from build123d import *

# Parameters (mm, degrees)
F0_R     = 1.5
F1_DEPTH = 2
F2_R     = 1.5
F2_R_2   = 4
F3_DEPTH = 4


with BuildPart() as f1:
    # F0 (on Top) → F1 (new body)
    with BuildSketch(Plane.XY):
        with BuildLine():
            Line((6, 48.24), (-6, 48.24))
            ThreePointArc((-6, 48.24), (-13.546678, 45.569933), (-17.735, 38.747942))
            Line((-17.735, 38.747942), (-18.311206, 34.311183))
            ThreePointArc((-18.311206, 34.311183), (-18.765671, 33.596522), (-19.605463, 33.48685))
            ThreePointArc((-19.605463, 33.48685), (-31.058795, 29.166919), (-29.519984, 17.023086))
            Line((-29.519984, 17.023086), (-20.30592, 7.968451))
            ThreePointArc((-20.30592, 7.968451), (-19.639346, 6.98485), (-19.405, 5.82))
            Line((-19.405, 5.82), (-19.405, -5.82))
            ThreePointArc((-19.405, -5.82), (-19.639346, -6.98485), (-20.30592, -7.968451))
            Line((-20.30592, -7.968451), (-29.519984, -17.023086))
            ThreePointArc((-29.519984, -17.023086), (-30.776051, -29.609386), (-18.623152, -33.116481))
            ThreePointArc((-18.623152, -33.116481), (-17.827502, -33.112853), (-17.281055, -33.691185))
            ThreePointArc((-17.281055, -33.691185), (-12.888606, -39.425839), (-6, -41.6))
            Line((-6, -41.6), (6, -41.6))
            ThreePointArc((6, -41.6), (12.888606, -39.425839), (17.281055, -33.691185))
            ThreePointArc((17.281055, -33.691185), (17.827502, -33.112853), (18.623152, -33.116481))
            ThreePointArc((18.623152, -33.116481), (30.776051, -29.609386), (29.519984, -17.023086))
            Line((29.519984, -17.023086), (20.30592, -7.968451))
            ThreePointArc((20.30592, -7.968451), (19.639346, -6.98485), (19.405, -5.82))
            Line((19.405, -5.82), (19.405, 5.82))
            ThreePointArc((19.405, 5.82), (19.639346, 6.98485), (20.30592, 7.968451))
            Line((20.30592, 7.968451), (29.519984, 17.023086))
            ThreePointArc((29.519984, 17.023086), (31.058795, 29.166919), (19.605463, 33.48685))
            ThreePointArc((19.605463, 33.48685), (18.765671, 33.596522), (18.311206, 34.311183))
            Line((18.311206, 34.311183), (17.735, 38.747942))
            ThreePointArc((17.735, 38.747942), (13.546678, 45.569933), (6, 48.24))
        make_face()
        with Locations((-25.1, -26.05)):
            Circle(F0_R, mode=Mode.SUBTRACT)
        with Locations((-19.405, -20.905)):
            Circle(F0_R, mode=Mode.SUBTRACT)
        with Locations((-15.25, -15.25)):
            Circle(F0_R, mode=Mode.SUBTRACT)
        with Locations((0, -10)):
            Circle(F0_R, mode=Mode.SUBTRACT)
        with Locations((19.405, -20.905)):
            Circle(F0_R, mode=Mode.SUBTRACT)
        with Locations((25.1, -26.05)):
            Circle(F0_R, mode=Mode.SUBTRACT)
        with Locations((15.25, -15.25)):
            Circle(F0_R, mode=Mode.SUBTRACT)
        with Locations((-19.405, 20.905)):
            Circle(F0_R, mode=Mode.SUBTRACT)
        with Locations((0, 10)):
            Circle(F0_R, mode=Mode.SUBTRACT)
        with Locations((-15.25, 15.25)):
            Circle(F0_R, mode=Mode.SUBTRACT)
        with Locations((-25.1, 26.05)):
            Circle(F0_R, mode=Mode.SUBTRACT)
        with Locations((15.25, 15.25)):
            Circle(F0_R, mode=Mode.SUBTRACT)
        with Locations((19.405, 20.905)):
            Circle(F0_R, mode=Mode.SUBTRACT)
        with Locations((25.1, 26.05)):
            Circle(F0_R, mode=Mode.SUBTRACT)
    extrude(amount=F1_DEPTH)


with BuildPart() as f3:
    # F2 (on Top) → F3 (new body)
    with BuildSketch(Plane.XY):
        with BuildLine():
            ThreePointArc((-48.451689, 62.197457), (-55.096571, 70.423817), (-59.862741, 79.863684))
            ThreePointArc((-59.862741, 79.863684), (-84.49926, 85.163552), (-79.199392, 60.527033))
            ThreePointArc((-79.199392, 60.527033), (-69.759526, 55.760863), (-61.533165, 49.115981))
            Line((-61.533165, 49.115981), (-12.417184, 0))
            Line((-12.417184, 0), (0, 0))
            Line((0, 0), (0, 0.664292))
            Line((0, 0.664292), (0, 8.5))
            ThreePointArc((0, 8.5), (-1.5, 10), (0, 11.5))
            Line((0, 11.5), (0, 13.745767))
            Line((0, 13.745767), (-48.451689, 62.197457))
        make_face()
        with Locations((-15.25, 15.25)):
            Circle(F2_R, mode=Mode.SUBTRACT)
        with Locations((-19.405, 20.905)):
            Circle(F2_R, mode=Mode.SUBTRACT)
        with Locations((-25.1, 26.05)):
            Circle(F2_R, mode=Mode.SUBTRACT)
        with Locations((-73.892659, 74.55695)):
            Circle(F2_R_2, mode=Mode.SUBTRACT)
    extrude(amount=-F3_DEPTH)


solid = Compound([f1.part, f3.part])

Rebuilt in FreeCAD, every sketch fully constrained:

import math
import FreeCAD as App
import Part
import Sketcher
from FreeCAD import Vector
Q = App.Units.Quantity

doc = App.newDocument("Part")
body = doc.addObject("PartDesign::Body", "Body")

# Sketch on XY plane
sketch1 = body.newObject("Sketcher::SketchObject", "Sketch")
sketch1.AttachmentSupport = (doc.getObject("XY_Plane"), [""])
sketch1.MapMode = "FlatFace"
sketch1.addGeometry([
    Part.LineSegment(Vector(6, 48.24, 0), Vector(-6, 48.24, 0)),  # 0
    Part.ArcOfCircle(Part.Circle(Vector(-6, 36.24, 0), Vector(0, 0, 1), 12), math.radians(90), math.radians(167.936527)),  # 1
    Part.LineSegment(Vector(-17.735, 38.747942, 0), Vector(-18.311206, 34.311183, 0)),  # 2
    Part.ArcOfCircle(Part.Circle(Vector(-19.302878, 34.439973, 0), Vector(0, 0, 1), 1), math.radians(-107.612926), math.radians(-7.399648)),  # 3
    Part.ArcOfCircle(Part.Circle(Vector(-22.595001, 24.07, 0), Vector(0, 0, 1), 9.88), math.radians(72.387082), math.radians(225.5)),  # 4
    Part.LineSegment(Vector(-29.519984, 17.023086, 0), Vector(-20.30592, 7.968451, 0)),  # 5
    Part.ArcOfCircle(Part.Circle(Vector(-22.417197, 5.82, 0), Vector(0, 0, 1), 3.012197), math.radians(-0.000009), math.radians(45.499996)),  # 6
    Part.LineSegment(Vector(-19.405, 5.82, 0), Vector(-19.405, -5.82, 0)),  # 7
    Part.ArcOfCircle(Part.Circle(Vector(-22.417197, -5.82, 0), Vector(0, 0, 1), 3.012197), math.radians(-45.499996), math.radians(0.000009)),  # 8
    Part.LineSegment(Vector(-20.30592, -7.968451, 0), Vector(-29.519984, -17.023086, 0)),  # 9
    Part.ArcOfCircle(Part.Circle(Vector(-22.595, -24.07, 0), Vector(0, 0, 1), 9.88), math.radians(134.500006), math.radians(293.703824)),  # 10
    Part.ArcOfCircle(Part.Circle(Vector(-18.221144, -34.032118, 0), Vector(0, 0, 1), 1.000001), math.radians(19.93371), math.radians(113.703768)),  # 11
    Part.ArcOfCircle(Part.Circle(Vector(-6.000001, -29.600001, 0), Vector(0, 0, 1), 11.999999), math.radians(-160.066332), math.radians(-89.999996)),  # 12
    Part.LineSegment(Vector(-6, -41.6, 0), Vector(6, -41.6, 0)),  # 13
    Part.ArcOfCircle(Part.Circle(Vector(6.000001, -29.600001, 0), Vector(0, 0, 1), 11.999999), math.radians(-90.000004), math.radians(-19.933668)),  # 14
    Part.ArcOfCircle(Part.Circle(Vector(18.221144, -34.032118, 0), Vector(0, 0, 1), 1.000001), math.radians(66.296232), math.radians(160.06629)),  # 15
    Part.ArcOfCircle(Part.Circle(Vector(22.595, -24.07, 0), Vector(0, 0, 1), 9.88), math.radians(-113.703824), math.radians(45.499994)),  # 16
    Part.LineSegment(Vector(29.519984, -17.023086, 0), Vector(20.30592, -7.968451, 0)),  # 17
    Part.ArcOfCircle(Part.Circle(Vector(22.417197, -5.82, 0), Vector(0, 0, 1), 3.012197), math.radians(179.999991), math.radians(225.499996)),  # 18
    Part.LineSegment(Vector(19.405, -5.82, 0), Vector(19.405, 5.82, 0)),  # 19
    Part.ArcOfCircle(Part.Circle(Vector(22.417197, 5.82, 0), Vector(0, 0, 1), 3.012197), math.radians(134.500004), math.radians(180.000009)),  # 20
    Part.LineSegment(Vector(20.30592, 7.968451, 0), Vector(29.519984, 17.023086, 0)),  # 21
    Part.ArcOfCircle(Part.Circle(Vector(22.595001, 24.07, 0), Vector(0, 0, 1), 9.88), math.radians(-45.5), math.radians(107.612918)),  # 22
    Part.ArcOfCircle(Part.Circle(Vector(19.302878, 34.439973, 0), Vector(0, 0, 1), 1), math.radians(-172.600352), math.radians(-72.387074)),  # 23
    Part.LineSegment(Vector(18.311206, 34.311183, 0), Vector(17.735, 38.747942, 0)),  # 24
    Part.ArcOfCircle(Part.Circle(Vector(6, 36.24, 0), Vector(0, 0, 1), 12), math.radians(12.063473), math.radians(90)),  # 25
    Part.Circle(Vector(-25.1, -26.05, 0), Vector(0, 0, 1), 1.5),  # 26
    Part.Circle(Vector(-19.405, -20.905, 0), Vector(0, 0, 1), 1.5),  # 27
    Part.Circle(Vector(-15.25, -15.25, 0), Vector(0, 0, 1), 1.5),  # 28
    Part.Circle(Vector(19.405, -20.905, 0), Vector(0, 0, 1), 1.5),  # 29
    Part.Circle(Vector(25.1, -26.05, 0), Vector(0, 0, 1), 1.5),  # 30
    Part.Circle(Vector(15.25, -15.25, 0), Vector(0, 0, 1), 1.5),  # 31
    Part.Circle(Vector(0, -10, 0), Vector(0, 0, 1), 1.5),  # 32
    Part.Circle(Vector(-15.25, 15.25, 0), Vector(0, 0, 1), 1.5),  # 33
    Part.Circle(Vector(-25.1, 26.05, 0), Vector(0, 0, 1), 1.5),  # 34
    Part.Circle(Vector(-19.405, 20.905, 0), Vector(0, 0, 1), 1.5),  # 35
    Part.Circle(Vector(0, 10, 0), Vector(0, 0, 1), 1.5),  # 36
    Part.Circle(Vector(15.25, 15.25, 0), Vector(0, 0, 1), 1.5),  # 37
    Part.Circle(Vector(19.405, 20.905, 0), Vector(0, 0, 1), 1.5),  # 38
    Part.Circle(Vector(25.1, 26.05, 0), Vector(0, 0, 1), 1.5),  # 39
], False)
sketch1.addConstraint([
    Sketcher.Constraint("Coincident", 0, 2, 1, 1),
    Sketcher.Constraint("Coincident", 1, 2, 2, 1),
    Sketcher.Constraint("Coincident", 2, 2, 3, 2),
    Sketcher.Constraint("Coincident", 3, 1, 4, 1),
    Sketcher.Constraint("Coincident", 4, 2, 5, 1),
    Sketcher.Constraint("Coincident", 5, 2, 6, 2),
    Sketcher.Constraint("Coincident", 6, 1, 7, 1),
    Sketcher.Constraint("Coincident", 7, 2, 8, 2),
    Sketcher.Constraint("Coincident", 8, 1, 9, 1),
    Sketcher.Constraint("Coincident", 9, 2, 10, 1),
    Sketcher.Constraint("Coincident", 10, 2, 11, 2),
    Sketcher.Constraint("Coincident", 11, 1, 12, 1),
    Sketcher.Constraint("Coincident", 12, 2, 13, 1),
    Sketcher.Constraint("Coincident", 13, 2, 14, 1),
    Sketcher.Constraint("Coincident", 14, 2, 15, 2),
    Sketcher.Constraint("Coincident", 15, 1, 16, 1),
    Sketcher.Constraint("Coincident", 16, 2, 17, 1),
    Sketcher.Constraint("Coincident", 17, 2, 18, 2),
    Sketcher.Constraint("Coincident", 18, 1, 19, 1),
    Sketcher.Constraint("Coincident", 19, 2, 20, 2),
    Sketcher.Constraint("Coincident", 20, 1, 21, 1),
    Sketcher.Constraint("Coincident", 21, 2, 22, 1),
    Sketcher.Constraint("Coincident", 22, 2, 23, 2),
    Sketcher.Constraint("Coincident", 23, 1, 24, 1),
    Sketcher.Constraint("Coincident", 24, 2, 25, 1),
    Sketcher.Constraint("Coincident", 25, 2, 0, 1),
    Sketcher.Constraint("Horizontal", 0),
    Sketcher.Constraint("Vertical", 7),
    Sketcher.Constraint("Horizontal", 13),
    Sketcher.Constraint("Vertical", 19),
    Sketcher.Constraint("PointOnObject", 32, 3, -2),
    Sketcher.Constraint("PointOnObject", 36, 3, -2),
    Sketcher.Constraint("Diameter", 26, 3.0),
    Sketcher.Constraint("Diameter", 27, 3.0),
    Sketcher.Constraint("Diameter", 28, 3.0),
    Sketcher.Constraint("Diameter", 29, 3.0),
    Sketcher.Constraint("Diameter", 30, 3.0),
    Sketcher.Constraint("Diameter", 31, 3.0),
    Sketcher.Constraint("Diameter", 32, 3.0),
    Sketcher.Constraint("Diameter", 33, 3.0),
    Sketcher.Constraint("Diameter", 34, 3.0),
    Sketcher.Constraint("Diameter", 35, 3.0),
    Sketcher.Constraint("Diameter", 36, 3.0),
    Sketcher.Constraint("Diameter", 37, 3.0),
    Sketcher.Constraint("Diameter", 38, 3.0),
    Sketcher.Constraint("Diameter", 39, 3.0),
    Sketcher.Constraint("Radius", 1, 12.0),
    Sketcher.Constraint("Radius", 3, 1.0),
    Sketcher.Constraint("Radius", 11, 1.000001),
    Sketcher.Constraint("Radius", 12, 11.999999),
    Sketcher.Constraint("Radius", 14, 11.999999),
    Sketcher.Constraint("Radius", 15, 1.000001),
    Sketcher.Constraint("Radius", 23, 1.0),
    Sketcher.Constraint("Radius", 25, 12.0),
    Sketcher.Constraint("DistanceX", 0, 2, 0, 1, 12.0),
    Sketcher.Constraint("DistanceX", 13, 1, 13, 2, 12.0),
    Sketcher.Constraint("Radius", 4, 9.88),
    Sketcher.Constraint("Radius", 10, 9.88),
    Sketcher.Constraint("Radius", 16, 9.88),
    Sketcher.Constraint("Radius", 22, 9.88),
    Sketcher.Constraint("DistanceX", 1, 3, -1, 1, 6.0),
    Sketcher.Constraint("DistanceX", 12, 3, -1, 1, 6.000001),
    Sketcher.Constraint("DistanceX", -1, 1, 14, 3, 6.000001),
    Sketcher.Constraint("DistanceX", -1, 1, 25, 3, 6.0),
    Sketcher.Constraint("DistanceY", 32, 3, -1, 1, 10.0),
    Sketcher.Constraint("DistanceY", -1, 1, 36, 3, 10.0),
    Sketcher.Constraint("DistanceX", 0, 2, -1, 1, 6.0),
    Sketcher.Constraint("DistanceX", 12, 2, -1, 1, 6.0),
    Sketcher.Constraint("DistanceY", 7, 2, 7, 1, 11.64),
    Sketcher.Constraint("DistanceY", 19, 1, 19, 2, 11.64),
    Sketcher.Constraint("DistanceY", 12, 3, -1, 1, 29.600001),
    Sketcher.Constraint("DistanceX", 26, 3, -1, 1, 25.1),
    Sketcher.Constraint("DistanceX", -1, 1, 30, 3, 25.1),
    Sketcher.Constraint("DistanceX", 34, 3, -1, 1, 25.1),
    Sketcher.Constraint("DistanceX", -1, 1, 39, 3, 25.1),
    Sketcher.Constraint("DistanceY", 26, 3, 28, 3, 10.8),
    Sketcher.Constraint("DistanceY", 30, 3, 31, 3, 10.8),
    Sketcher.Constraint("DistanceY", 33, 3, 34, 3, 10.8),
    Sketcher.Constraint("DistanceY", 37, 3, 39, 3, 10.8),
    Sketcher.Constraint("DistanceY", -1, 1, 1, 3, 36.24),
    Sketcher.Constraint("DistanceY", -1, 1, 4, 3, 24.07),
    Sketcher.Constraint("DistanceY", -1, 1, 6, 3, 5.82),
    Sketcher.Constraint("DistanceY", 8, 3, -1, 1, 5.82),
    Sketcher.Constraint("DistanceY", 10, 3, -1, 1, 24.07),
    Sketcher.Constraint("DistanceY", 16, 3, -1, 1, 24.07),
    Sketcher.Constraint("DistanceY", 18, 3, -1, 1, 5.82),
    Sketcher.Constraint("DistanceY", -1, 1, 20, 3, 5.82),
    Sketcher.Constraint("DistanceY", -1, 1, 22, 3, 24.07),
    Sketcher.Constraint("DistanceY", 26, 3, -1, 1, 26.05),
    Sketcher.Constraint("DistanceX", 28, 3, -1, 1, 15.25),
    Sketcher.Constraint("DistanceY", 30, 3, -1, 1, 26.05),
    Sketcher.Constraint("DistanceX", -1, 1, 31, 3, 15.25),
    Sketcher.Constraint("DistanceX", 33, 3, -1, 1, 15.25),
    Sketcher.Constraint("DistanceY", -1, 1, 33, 3, 15.25),
    Sketcher.Constraint("DistanceX", -1, 1, 37, 3, 15.25),
    Sketcher.Constraint("DistanceY", -1, 1, 37, 3, 15.25),
    Sketcher.Constraint("DistanceY", -1, 1, 6, 1, 5.82),
    Sketcher.Constraint("DistanceY", 18, 1, -1, 1, 5.82),
    Sketcher.Constraint("DistanceX", 10, 3, 16, 3, 45.19),
    Sketcher.Constraint("DistanceX", 4, 3, 22, 3, 45.190001),
    Sketcher.Constraint("DistanceX", 10, 3, 27, 3, 3.19),
    Sketcher.Constraint("DistanceX", 29, 3, 16, 3, 3.19),
    Sketcher.Constraint("DistanceX", 4, 3, 35, 3, 3.190001),
    Sketcher.Constraint("DistanceX", 38, 3, 22, 3, 3.190001),
    Sketcher.Constraint("DistanceX", 4, 3, 1, 2, 4.860001),
    Sketcher.Constraint("DistanceX", 4, 3, -1, 1, 22.595001),
    Sketcher.Constraint("DistanceX", 10, 3, -1, 1, 22.595),
    Sketcher.Constraint("DistanceY", 27, 3, -1, 1, 20.905),
    Sketcher.Constraint("DistanceY", 29, 3, -1, 1, 20.905),
    Sketcher.Constraint("DistanceY", -1, 1, 35, 3, 20.905),
    Sketcher.Constraint("DistanceY", -1, 1, 38, 3, 20.905),
    Sketcher.Constraint("DistanceX", 6, 1, -1, 1, 19.405),
    Sketcher.Constraint("DistanceX", -1, 1, 18, 1, 19.405),
    Sketcher.Constraint("DistanceX", -1, 1, 24, 2, 17.735),
    Sketcher.Constraint("Radius", 6, 3.012197),
    Sketcher.Constraint("Radius", 8, 3.012197),
    Sketcher.Constraint("Radius", 18, 3.012197),
    Sketcher.Constraint("Radius", 20, 3.012197),
    Sketcher.Constraint("Distance", 2, 4.474019),
    Sketcher.Constraint("Distance", 24, 4.474019),
    Sketcher.Constraint("DistanceX", 3, 3, -1, 1, 19.302878),
    Sketcher.Constraint("DistanceX", -1, 1, 23, 3, 19.302878),
    Sketcher.Constraint("DistanceY", -1, 1, 3, 1, 33.48685),
    Sketcher.Constraint("DistanceX", 5, 2, -1, 1, 20.30592),
    Sketcher.Constraint("DistanceX", 8, 1, -1, 1, 20.30592),
    Sketcher.Constraint("DistanceX", 10, 2, -1, 1, 18.623152),
    Sketcher.Constraint("DistanceX", -1, 1, 15, 1, 18.623152),
    Sketcher.Constraint("DistanceX", -1, 1, 17, 2, 20.30592),
    Sketcher.Constraint("DistanceX", -1, 1, 20, 1, 20.30592),
    Sketcher.Constraint("DistanceY", -1, 1, 22, 2, 33.48685),
    Sketcher.Constraint("DistanceX", 11, 3, 11, 1, 0.940089),
    Sketcher.Constraint("DistanceX", 14, 2, 15, 3, 0.940089),
    Sketcher.Constraint("Distance", 5, 12.918413),
    Sketcher.Constraint("Distance", 9, 12.918413),
    Sketcher.Constraint("Distance", 17, 12.918413),
    Sketcher.Constraint("Distance", 21, 12.918413),
])
pad1 = body.newObject("PartDesign::Pad", "Pad")
pad1.Profile = sketch1
pad1.Length = 2
body2 = doc.addObject("PartDesign::Body", "Body001")

# Sketch on XY plane
sketch2 = body2.newObject("Sketcher::SketchObject", "Sketch001")
sketch2.AttachmentSupport = (doc.getObject("XY_Plane001"), [""])
sketch2.MapMode = "FlatFace"
sketch2.addGeometry([
    Part.ArcOfCircle(Part.Circle(Vector(-13.096374, 97.552781, 0), Vector(0, 0, 1), 49.999972), math.radians(-159.281177), math.radians(-134.999993)),  # 0
    Part.ArcOfCircle(Part.Circle(Vector(-73.892658, 74.55695, 0), Vector(0, 0, 1), 15), math.radians(20.71883), math.radians(249.28117)),  # 1
    Part.ArcOfCircle(Part.Circle(Vector(-96.888502, 13.760646, 0), Vector(0, 0, 1), 49.999996), math.radians(44.999998), math.radians(69.281172)),  # 2
    Part.LineSegment(Vector(-61.533165, 49.115981, 0), Vector(-12.417184, 0, 0)),  # 3
    Part.LineSegment(Vector(-12.417184, 0, 0), Vector(0, 0, 0)),  # 4
    Part.LineSegment(Vector(0, 0, 0), Vector(0, 8.5, 0)),  # 5
    Part.ArcOfCircle(Part.Circle(Vector(0, 10, 0), Vector(0, 0, 1), 1.5), math.radians(90), math.radians(270)),  # 6
    Part.LineSegment(Vector(0, 11.5, 0), Vector(0, 13.745767, 0)),  # 7
    Part.LineSegment(Vector(0, 13.745767, 0), Vector(-48.451689, 62.197457, 0)),  # 8
    Part.Circle(Vector(-15.25, 15.25, 0), Vector(0, 0, 1), 1.5),  # 9
    Part.Circle(Vector(-19.405, 20.905, 0), Vector(0, 0, 1), 1.5),  # 10
    Part.Circle(Vector(-25.1, 26.05, 0), Vector(0, 0, 1), 1.5),  # 11
    Part.Circle(Vector(-73.892659, 74.55695, 0), Vector(0, 0, 1), 4),  # 12
], False)
sketch2.addConstraint([
    Sketcher.Constraint("Tangent", 0, 1, 1, 1),
    Sketcher.Constraint("Tangent", 1, 2, 2, 2),
    Sketcher.Constraint("Tangent", 2, 1, 3, 1),
    Sketcher.Constraint("Coincident", 3, 2, 4, 1),
    Sketcher.Constraint("Coincident", 4, 2, 5, 1),
    Sketcher.Constraint("Coincident", 5, 2, 6, 2),
    Sketcher.Constraint("Coincident", 6, 1, 7, 1),
    Sketcher.Constraint("Coincident", 7, 2, 8, 1),
    Sketcher.Constraint("Tangent", 8, 2, 0, 2),
    Sketcher.Constraint("Horizontal", 4),
    Sketcher.Constraint("Vertical", 5),
    Sketcher.Constraint("Vertical", 7),
    Sketcher.Constraint("Coincident", 4, 2, -1, 1),
    Sketcher.Constraint("Coincident", 12, 3, 1, 3),
    Sketcher.Constraint("Equal", 6, 9),
    Sketcher.Constraint("Equal", 9, 10),
    Sketcher.Constraint("Equal", 10, 11),
    Sketcher.Constraint("PointOnObject", 6, 3, -2),
    Sketcher.Constraint("PointOnObject", 6, 1, -2),
    Sketcher.Constraint("Parallel", 3, 8),
    Sketcher.Constraint("Diameter", 9, 3.0),
    Sketcher.Constraint("Diameter", 12, 8.0),
    Sketcher.Constraint("Radius", 1, 15.0),
    Sketcher.Constraint("Angle", 3, Q("-45 deg")),
    Sketcher.Constraint("DistanceY", 5, 1, 5, 2, 8.5),
    Sketcher.Constraint("DistanceX", 11, 3, -1, 1, 25.1),
    Sketcher.Constraint("DistanceY", 9, 3, 11, 3, 10.8),
    Sketcher.Constraint("DistanceX", 9, 3, -1, 1, 15.25),
    Sketcher.Constraint("DistanceY", -1, 1, 9, 3, 15.25),
    Sketcher.Constraint("Radius", 0, 49.999972),
    Sketcher.Constraint("DistanceX", 10, 3, -1, 1, 19.405),
    Sketcher.Constraint("DistanceY", -1, 1, 10, 3, 20.905),
    Sketcher.Constraint("Radius", 2, 49.999996),
    Sketcher.Constraint("DistanceX", 2, 3, -1, 1, 96.888502),
    Sketcher.Constraint("DistanceX", 4, 1, 4, 2, 12.417184),
    Sketcher.Constraint("DistanceY", 7, 1, 7, 2, 2.245767),
    Sketcher.Constraint("DistanceY", -1, 1, 0, 3, 97.552781),
])
pad2 = body2.newObject("PartDesign::Pad", "Pad001")
pad2.Profile = sketch2
pad2.Length = 4
pad2.Reversed = True

doc.recompute()
